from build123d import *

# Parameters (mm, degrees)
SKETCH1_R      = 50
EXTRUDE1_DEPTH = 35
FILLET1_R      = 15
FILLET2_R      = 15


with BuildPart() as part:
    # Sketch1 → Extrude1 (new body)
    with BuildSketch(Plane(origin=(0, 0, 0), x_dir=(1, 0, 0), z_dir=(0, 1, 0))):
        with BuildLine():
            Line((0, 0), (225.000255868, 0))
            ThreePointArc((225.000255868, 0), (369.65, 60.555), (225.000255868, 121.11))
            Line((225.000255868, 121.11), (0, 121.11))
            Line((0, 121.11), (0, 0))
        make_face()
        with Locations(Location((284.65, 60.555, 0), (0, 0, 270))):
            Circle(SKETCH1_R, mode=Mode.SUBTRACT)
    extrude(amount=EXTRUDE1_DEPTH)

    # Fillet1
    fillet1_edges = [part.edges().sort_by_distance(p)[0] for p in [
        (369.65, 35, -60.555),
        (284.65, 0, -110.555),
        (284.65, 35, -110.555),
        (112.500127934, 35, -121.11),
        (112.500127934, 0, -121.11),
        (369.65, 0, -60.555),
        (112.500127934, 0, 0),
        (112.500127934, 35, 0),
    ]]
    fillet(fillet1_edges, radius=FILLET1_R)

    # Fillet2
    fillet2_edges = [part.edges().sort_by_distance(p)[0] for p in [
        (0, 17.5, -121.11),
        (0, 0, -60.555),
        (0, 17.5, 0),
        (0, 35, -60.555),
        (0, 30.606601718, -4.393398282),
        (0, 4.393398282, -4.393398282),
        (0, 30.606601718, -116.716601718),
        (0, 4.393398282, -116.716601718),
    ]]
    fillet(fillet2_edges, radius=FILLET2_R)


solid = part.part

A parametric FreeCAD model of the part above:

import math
import FreeCAD as App
import Part
import Sketcher


def edges_at(feature, points):
    """Names of the edges that pass closest to the given points."""
    edges = feature.Shape.Edges
    near = lambda p: min(range(len(edges)), key=lambda i: edges[i].distToShape(Part.Vertex(*p))[0])
    return sorted({f"Edge{near(p) + 1}" for p in points})

doc = App.newDocument("Part")
body = doc.addObject("PartDesign::Body", "Body")

sketch1 = doc.addObject("Sketcher::SketchObject", "Sketch")
body.addObject(sketch1)
sketch1.AttachmentSupport = (doc.XZ_Plane, [""])
sketch1.MapMode = "FlatFace"
sketch1.addGeometry([
    Part.LineSegment(App.Vector(0, 0, 0), App.Vector(225, 0, 0)),
    Part.ArcOfCircle(Part.Circle(App.Vector(285, -61, 0), App.Vector(0, 0, 1), 85), math.radians(-135), math.radians(135)),
    Part.LineSegment(App.Vector(225, -121, 0), App.Vector(0, -121, 0)),
    Part.LineSegment(App.Vector(0, -121, 0), App.Vector(0, 0, 0)),
    Part.Circle(App.Vector(285, -61, 0), App.Vector(0, 0, 1), 50),
], False)
sketch1.addConstraint([
    Sketcher.Constraint("Coincident", 0, 2, 1, 2),
    Sketcher.Constraint("Coincident", 1, 1, 2, 1),
    Sketcher.Constraint("Coincident", 2, 2, 3, 1),
    Sketcher.Constraint("Coincident", 3, 2, 0, 1),
    Sketcher.Constraint("Horizontal", 0),
    Sketcher.Constraint("Horizontal", 2),
    Sketcher.Constraint("Vertical", 3),
    Sketcher.Constraint("Coincident", 3, 2, -1, 1),
    Sketcher.Constraint("Coincident", 4, 3, 1, 3),
    Sketcher.Constraint("Vertical", 0, 2, 1, 1),
    Sketcher.Constraint("Diameter", 4, 100.0),
    Sketcher.Constraint("Radius", 1, 85.0),
    Sketcher.Constraint("DistanceY", 3, 1, 3, 2, 121.11),
    Sketcher.Constraint("DistanceX", -1, 1, 1, 3, 284.65),
])
pad1 = doc.addObject("PartDesign::Pad", "Pad")
body.addObject(pad1)
pad1.Profile = sketch1
pad1.Length = 35
pad1.Reversed = True
doc.recompute()

fillet = doc.addObject("PartDesign::Fillet", "Fillet")
body.addObject(fillet)
fillet.Base = (pad1, edges_at(pad1, [
    (369.65, 35, -60.555),
    (284.65, 0, -110.555),
    (284.65, 35, -110.555),
    (112.5, 35, -121.11),
    (112.5, 0, -121.11),
    (369.65, 0, -60.555),
    (112.5, 0, 0),
    (112.5, 35, 0),
]))
fillet.Radius = 15
doc.recompute()

fillet2 = doc.addObject("PartDesign::Fillet", "Fillet001")
body.addObject(fillet2)
fillet2.Base = (fillet, edges_at(fillet, [
    (0, 17.5, -121.11),
    (0, 0, -60.555),
    (0, 17.5, 0),
    (0, 35, -60.555),
    (0, 30.607, -4.393),
    (0, 4.393, -4.393),
    (0, 30.607, -116.717),
    (0, 4.393, -116.717),
]))
fillet2.Radius = 15

doc.recompute()
